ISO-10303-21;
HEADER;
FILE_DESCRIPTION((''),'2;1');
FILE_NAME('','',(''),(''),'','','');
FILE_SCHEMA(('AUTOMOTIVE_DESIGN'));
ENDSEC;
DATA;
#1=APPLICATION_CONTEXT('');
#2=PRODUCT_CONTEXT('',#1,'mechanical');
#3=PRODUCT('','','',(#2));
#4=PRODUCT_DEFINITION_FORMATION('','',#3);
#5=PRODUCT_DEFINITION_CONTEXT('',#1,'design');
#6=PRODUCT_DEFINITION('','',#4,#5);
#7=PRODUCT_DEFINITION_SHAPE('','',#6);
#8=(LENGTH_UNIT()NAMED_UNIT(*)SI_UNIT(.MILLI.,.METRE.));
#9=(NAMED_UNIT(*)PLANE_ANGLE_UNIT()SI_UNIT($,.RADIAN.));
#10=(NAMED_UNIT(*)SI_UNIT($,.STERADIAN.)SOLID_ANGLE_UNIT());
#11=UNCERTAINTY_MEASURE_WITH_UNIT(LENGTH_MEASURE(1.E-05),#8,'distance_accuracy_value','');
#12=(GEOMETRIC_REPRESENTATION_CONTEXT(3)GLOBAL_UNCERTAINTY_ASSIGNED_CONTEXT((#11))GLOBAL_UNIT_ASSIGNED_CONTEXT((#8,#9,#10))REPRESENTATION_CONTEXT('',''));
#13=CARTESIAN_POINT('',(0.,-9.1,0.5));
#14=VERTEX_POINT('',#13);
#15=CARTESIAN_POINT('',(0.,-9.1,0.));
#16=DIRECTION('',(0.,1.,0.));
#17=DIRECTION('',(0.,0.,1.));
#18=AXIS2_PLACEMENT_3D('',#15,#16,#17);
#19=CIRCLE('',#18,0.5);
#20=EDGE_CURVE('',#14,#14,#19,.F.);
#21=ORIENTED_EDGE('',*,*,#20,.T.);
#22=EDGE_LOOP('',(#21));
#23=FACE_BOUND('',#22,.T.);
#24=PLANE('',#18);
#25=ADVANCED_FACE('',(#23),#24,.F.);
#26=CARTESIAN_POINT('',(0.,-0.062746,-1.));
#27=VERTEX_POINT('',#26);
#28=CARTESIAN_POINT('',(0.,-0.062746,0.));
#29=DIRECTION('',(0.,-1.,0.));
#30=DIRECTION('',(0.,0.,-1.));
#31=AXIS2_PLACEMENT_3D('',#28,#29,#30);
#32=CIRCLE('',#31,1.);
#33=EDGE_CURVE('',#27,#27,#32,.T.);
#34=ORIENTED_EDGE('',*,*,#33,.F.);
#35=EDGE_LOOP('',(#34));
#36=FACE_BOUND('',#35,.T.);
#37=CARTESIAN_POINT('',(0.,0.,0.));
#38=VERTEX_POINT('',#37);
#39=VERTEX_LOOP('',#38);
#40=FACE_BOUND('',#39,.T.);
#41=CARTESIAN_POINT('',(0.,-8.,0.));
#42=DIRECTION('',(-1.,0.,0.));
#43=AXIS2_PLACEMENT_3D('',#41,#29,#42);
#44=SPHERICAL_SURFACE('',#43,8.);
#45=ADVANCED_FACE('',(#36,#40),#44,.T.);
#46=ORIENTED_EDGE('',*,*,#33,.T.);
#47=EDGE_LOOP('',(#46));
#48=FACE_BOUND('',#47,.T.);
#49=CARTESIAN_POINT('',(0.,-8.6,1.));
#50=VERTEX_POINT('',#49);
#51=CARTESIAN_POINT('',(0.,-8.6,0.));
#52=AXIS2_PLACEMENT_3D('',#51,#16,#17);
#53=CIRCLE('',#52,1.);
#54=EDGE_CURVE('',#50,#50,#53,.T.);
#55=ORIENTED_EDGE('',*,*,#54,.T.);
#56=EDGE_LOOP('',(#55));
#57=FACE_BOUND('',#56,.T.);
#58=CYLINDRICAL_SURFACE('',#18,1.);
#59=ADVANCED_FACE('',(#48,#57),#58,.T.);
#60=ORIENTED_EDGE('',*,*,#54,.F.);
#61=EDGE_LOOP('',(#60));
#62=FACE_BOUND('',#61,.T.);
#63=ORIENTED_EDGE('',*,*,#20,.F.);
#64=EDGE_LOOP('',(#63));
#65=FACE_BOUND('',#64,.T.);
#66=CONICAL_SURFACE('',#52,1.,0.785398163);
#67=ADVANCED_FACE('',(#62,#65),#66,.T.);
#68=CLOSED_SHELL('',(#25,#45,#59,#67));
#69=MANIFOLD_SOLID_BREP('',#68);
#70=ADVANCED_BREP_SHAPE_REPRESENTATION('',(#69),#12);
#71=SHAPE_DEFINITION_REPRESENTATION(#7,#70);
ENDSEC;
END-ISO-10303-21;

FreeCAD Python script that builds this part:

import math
import FreeCAD as App
import Part
import Sketcher

V = App.Vector
Q = App.Units.Quantity


def edges_at(feature, points):
    """Names of the edges that pass closest to the given points."""
    edges = feature.Shape.Edges
    near = lambda p: min(range(len(edges)), key=lambda i: edges[i].distToShape(Part.Vertex(*p))[0])
    return sorted({f"Edge{near(p) + 1}" for p in points})

doc = App.newDocument("Part")
body = doc.addObject("PartDesign::Body", "Body")

sketch1 = body.newObject("Sketcher::SketchObject", "Sketch")
sketch1.AttachmentSupport = (doc.getObject("XZ_Plane"), [""])
sketch1.MapMode = "FlatFace"
sketch1.addGeometry(Part.Circle(V(0, 0, 0), V(0, 0, 1), 1), False)
sketch1.addConstraint(Sketcher.Constraint("Coincident", 0, 3, -1, 1))
sketch1.addConstraint(Sketcher.Constraint("Diameter", 0, Q("2 mm")))
pad1 = body.newObject("PartDesign::Pad", "Pad")
pad1.Profile = sketch1
pad1.Length = 9.1
doc.recompute()

chamfer = body.newObject("PartDesign::Chamfer", "Chamfer")
chamfer.Base = (pad1, edges_at(pad1, [(-1, -9.1, 0)]))
chamfer.Size = 0.5

sketch2 = body.newObject("Sketcher::SketchObject", "Sketch001")
sketch2.AttachmentSupport = (doc.getObject("XY_Plane"), [""])
sketch2.MapMode = "FlatFace"
sketch2.addGeometry(Part.LineSegment(V(0, 2, 0), V(-2, 2, 0)), False)
sketch2.addGeometry(Part.LineSegment(V(-2, 2, 0), V(-2, -0.254033, 0)), False)
sketch2.addGeometry(Part.ArcOfCircle(Part.Circle(V(0, -8, 0), V(0, 0, 1), 8), math.radians(90), math.radians(104.477512)), False)
sketch2.addGeometry(Part.LineSegment(V(0, 0, 0), V(0, 2, 0)), False)
sketch2.addConstraint(Sketcher.Constraint("Coincident", 0, 2, 1, 1))
sketch2.addConstraint(Sketcher.Constraint("Coincident", 1, 2, 2, 2))
sketch2.addConstraint(Sketcher.Constraint("Coincident", 2, 1, 3, 1))
sketch2.addConstraint(Sketcher.Constraint("Coincident", 3, 2, 0, 1))
sketch2.addConstraint(Sketcher.Constraint("Horizontal", 0))
sketch2.addConstraint(Sketcher.Constraint("Vertical", 1))
sketch2.addConstraint(Sketcher.Constraint("Vertical", 3))
sketch2.addConstraint(Sketcher.Constraint("Coincident", 2, 1, -1, 1))
sketch2.addConstraint(Sketcher.Constraint("PointOnObject", 2, 3, -2))
sketch2.addConstraint(Sketcher.Constraint("Equal", 0, 3))
sketch2.addConstraint(Sketcher.Constraint("Radius", 2, Q("8 mm")))
sketch2.addConstraint(Sketcher.Constraint("DistanceX", 0, 2, 0, 1, Q("2 mm")))
groove = body.newObject("PartDesign::Groove", "Groove")
groove.Profile = sketch2
groove.ReferenceAxis = (sketch2, ["V_Axis"])
groove.Angle = 360

doc.recompute()
